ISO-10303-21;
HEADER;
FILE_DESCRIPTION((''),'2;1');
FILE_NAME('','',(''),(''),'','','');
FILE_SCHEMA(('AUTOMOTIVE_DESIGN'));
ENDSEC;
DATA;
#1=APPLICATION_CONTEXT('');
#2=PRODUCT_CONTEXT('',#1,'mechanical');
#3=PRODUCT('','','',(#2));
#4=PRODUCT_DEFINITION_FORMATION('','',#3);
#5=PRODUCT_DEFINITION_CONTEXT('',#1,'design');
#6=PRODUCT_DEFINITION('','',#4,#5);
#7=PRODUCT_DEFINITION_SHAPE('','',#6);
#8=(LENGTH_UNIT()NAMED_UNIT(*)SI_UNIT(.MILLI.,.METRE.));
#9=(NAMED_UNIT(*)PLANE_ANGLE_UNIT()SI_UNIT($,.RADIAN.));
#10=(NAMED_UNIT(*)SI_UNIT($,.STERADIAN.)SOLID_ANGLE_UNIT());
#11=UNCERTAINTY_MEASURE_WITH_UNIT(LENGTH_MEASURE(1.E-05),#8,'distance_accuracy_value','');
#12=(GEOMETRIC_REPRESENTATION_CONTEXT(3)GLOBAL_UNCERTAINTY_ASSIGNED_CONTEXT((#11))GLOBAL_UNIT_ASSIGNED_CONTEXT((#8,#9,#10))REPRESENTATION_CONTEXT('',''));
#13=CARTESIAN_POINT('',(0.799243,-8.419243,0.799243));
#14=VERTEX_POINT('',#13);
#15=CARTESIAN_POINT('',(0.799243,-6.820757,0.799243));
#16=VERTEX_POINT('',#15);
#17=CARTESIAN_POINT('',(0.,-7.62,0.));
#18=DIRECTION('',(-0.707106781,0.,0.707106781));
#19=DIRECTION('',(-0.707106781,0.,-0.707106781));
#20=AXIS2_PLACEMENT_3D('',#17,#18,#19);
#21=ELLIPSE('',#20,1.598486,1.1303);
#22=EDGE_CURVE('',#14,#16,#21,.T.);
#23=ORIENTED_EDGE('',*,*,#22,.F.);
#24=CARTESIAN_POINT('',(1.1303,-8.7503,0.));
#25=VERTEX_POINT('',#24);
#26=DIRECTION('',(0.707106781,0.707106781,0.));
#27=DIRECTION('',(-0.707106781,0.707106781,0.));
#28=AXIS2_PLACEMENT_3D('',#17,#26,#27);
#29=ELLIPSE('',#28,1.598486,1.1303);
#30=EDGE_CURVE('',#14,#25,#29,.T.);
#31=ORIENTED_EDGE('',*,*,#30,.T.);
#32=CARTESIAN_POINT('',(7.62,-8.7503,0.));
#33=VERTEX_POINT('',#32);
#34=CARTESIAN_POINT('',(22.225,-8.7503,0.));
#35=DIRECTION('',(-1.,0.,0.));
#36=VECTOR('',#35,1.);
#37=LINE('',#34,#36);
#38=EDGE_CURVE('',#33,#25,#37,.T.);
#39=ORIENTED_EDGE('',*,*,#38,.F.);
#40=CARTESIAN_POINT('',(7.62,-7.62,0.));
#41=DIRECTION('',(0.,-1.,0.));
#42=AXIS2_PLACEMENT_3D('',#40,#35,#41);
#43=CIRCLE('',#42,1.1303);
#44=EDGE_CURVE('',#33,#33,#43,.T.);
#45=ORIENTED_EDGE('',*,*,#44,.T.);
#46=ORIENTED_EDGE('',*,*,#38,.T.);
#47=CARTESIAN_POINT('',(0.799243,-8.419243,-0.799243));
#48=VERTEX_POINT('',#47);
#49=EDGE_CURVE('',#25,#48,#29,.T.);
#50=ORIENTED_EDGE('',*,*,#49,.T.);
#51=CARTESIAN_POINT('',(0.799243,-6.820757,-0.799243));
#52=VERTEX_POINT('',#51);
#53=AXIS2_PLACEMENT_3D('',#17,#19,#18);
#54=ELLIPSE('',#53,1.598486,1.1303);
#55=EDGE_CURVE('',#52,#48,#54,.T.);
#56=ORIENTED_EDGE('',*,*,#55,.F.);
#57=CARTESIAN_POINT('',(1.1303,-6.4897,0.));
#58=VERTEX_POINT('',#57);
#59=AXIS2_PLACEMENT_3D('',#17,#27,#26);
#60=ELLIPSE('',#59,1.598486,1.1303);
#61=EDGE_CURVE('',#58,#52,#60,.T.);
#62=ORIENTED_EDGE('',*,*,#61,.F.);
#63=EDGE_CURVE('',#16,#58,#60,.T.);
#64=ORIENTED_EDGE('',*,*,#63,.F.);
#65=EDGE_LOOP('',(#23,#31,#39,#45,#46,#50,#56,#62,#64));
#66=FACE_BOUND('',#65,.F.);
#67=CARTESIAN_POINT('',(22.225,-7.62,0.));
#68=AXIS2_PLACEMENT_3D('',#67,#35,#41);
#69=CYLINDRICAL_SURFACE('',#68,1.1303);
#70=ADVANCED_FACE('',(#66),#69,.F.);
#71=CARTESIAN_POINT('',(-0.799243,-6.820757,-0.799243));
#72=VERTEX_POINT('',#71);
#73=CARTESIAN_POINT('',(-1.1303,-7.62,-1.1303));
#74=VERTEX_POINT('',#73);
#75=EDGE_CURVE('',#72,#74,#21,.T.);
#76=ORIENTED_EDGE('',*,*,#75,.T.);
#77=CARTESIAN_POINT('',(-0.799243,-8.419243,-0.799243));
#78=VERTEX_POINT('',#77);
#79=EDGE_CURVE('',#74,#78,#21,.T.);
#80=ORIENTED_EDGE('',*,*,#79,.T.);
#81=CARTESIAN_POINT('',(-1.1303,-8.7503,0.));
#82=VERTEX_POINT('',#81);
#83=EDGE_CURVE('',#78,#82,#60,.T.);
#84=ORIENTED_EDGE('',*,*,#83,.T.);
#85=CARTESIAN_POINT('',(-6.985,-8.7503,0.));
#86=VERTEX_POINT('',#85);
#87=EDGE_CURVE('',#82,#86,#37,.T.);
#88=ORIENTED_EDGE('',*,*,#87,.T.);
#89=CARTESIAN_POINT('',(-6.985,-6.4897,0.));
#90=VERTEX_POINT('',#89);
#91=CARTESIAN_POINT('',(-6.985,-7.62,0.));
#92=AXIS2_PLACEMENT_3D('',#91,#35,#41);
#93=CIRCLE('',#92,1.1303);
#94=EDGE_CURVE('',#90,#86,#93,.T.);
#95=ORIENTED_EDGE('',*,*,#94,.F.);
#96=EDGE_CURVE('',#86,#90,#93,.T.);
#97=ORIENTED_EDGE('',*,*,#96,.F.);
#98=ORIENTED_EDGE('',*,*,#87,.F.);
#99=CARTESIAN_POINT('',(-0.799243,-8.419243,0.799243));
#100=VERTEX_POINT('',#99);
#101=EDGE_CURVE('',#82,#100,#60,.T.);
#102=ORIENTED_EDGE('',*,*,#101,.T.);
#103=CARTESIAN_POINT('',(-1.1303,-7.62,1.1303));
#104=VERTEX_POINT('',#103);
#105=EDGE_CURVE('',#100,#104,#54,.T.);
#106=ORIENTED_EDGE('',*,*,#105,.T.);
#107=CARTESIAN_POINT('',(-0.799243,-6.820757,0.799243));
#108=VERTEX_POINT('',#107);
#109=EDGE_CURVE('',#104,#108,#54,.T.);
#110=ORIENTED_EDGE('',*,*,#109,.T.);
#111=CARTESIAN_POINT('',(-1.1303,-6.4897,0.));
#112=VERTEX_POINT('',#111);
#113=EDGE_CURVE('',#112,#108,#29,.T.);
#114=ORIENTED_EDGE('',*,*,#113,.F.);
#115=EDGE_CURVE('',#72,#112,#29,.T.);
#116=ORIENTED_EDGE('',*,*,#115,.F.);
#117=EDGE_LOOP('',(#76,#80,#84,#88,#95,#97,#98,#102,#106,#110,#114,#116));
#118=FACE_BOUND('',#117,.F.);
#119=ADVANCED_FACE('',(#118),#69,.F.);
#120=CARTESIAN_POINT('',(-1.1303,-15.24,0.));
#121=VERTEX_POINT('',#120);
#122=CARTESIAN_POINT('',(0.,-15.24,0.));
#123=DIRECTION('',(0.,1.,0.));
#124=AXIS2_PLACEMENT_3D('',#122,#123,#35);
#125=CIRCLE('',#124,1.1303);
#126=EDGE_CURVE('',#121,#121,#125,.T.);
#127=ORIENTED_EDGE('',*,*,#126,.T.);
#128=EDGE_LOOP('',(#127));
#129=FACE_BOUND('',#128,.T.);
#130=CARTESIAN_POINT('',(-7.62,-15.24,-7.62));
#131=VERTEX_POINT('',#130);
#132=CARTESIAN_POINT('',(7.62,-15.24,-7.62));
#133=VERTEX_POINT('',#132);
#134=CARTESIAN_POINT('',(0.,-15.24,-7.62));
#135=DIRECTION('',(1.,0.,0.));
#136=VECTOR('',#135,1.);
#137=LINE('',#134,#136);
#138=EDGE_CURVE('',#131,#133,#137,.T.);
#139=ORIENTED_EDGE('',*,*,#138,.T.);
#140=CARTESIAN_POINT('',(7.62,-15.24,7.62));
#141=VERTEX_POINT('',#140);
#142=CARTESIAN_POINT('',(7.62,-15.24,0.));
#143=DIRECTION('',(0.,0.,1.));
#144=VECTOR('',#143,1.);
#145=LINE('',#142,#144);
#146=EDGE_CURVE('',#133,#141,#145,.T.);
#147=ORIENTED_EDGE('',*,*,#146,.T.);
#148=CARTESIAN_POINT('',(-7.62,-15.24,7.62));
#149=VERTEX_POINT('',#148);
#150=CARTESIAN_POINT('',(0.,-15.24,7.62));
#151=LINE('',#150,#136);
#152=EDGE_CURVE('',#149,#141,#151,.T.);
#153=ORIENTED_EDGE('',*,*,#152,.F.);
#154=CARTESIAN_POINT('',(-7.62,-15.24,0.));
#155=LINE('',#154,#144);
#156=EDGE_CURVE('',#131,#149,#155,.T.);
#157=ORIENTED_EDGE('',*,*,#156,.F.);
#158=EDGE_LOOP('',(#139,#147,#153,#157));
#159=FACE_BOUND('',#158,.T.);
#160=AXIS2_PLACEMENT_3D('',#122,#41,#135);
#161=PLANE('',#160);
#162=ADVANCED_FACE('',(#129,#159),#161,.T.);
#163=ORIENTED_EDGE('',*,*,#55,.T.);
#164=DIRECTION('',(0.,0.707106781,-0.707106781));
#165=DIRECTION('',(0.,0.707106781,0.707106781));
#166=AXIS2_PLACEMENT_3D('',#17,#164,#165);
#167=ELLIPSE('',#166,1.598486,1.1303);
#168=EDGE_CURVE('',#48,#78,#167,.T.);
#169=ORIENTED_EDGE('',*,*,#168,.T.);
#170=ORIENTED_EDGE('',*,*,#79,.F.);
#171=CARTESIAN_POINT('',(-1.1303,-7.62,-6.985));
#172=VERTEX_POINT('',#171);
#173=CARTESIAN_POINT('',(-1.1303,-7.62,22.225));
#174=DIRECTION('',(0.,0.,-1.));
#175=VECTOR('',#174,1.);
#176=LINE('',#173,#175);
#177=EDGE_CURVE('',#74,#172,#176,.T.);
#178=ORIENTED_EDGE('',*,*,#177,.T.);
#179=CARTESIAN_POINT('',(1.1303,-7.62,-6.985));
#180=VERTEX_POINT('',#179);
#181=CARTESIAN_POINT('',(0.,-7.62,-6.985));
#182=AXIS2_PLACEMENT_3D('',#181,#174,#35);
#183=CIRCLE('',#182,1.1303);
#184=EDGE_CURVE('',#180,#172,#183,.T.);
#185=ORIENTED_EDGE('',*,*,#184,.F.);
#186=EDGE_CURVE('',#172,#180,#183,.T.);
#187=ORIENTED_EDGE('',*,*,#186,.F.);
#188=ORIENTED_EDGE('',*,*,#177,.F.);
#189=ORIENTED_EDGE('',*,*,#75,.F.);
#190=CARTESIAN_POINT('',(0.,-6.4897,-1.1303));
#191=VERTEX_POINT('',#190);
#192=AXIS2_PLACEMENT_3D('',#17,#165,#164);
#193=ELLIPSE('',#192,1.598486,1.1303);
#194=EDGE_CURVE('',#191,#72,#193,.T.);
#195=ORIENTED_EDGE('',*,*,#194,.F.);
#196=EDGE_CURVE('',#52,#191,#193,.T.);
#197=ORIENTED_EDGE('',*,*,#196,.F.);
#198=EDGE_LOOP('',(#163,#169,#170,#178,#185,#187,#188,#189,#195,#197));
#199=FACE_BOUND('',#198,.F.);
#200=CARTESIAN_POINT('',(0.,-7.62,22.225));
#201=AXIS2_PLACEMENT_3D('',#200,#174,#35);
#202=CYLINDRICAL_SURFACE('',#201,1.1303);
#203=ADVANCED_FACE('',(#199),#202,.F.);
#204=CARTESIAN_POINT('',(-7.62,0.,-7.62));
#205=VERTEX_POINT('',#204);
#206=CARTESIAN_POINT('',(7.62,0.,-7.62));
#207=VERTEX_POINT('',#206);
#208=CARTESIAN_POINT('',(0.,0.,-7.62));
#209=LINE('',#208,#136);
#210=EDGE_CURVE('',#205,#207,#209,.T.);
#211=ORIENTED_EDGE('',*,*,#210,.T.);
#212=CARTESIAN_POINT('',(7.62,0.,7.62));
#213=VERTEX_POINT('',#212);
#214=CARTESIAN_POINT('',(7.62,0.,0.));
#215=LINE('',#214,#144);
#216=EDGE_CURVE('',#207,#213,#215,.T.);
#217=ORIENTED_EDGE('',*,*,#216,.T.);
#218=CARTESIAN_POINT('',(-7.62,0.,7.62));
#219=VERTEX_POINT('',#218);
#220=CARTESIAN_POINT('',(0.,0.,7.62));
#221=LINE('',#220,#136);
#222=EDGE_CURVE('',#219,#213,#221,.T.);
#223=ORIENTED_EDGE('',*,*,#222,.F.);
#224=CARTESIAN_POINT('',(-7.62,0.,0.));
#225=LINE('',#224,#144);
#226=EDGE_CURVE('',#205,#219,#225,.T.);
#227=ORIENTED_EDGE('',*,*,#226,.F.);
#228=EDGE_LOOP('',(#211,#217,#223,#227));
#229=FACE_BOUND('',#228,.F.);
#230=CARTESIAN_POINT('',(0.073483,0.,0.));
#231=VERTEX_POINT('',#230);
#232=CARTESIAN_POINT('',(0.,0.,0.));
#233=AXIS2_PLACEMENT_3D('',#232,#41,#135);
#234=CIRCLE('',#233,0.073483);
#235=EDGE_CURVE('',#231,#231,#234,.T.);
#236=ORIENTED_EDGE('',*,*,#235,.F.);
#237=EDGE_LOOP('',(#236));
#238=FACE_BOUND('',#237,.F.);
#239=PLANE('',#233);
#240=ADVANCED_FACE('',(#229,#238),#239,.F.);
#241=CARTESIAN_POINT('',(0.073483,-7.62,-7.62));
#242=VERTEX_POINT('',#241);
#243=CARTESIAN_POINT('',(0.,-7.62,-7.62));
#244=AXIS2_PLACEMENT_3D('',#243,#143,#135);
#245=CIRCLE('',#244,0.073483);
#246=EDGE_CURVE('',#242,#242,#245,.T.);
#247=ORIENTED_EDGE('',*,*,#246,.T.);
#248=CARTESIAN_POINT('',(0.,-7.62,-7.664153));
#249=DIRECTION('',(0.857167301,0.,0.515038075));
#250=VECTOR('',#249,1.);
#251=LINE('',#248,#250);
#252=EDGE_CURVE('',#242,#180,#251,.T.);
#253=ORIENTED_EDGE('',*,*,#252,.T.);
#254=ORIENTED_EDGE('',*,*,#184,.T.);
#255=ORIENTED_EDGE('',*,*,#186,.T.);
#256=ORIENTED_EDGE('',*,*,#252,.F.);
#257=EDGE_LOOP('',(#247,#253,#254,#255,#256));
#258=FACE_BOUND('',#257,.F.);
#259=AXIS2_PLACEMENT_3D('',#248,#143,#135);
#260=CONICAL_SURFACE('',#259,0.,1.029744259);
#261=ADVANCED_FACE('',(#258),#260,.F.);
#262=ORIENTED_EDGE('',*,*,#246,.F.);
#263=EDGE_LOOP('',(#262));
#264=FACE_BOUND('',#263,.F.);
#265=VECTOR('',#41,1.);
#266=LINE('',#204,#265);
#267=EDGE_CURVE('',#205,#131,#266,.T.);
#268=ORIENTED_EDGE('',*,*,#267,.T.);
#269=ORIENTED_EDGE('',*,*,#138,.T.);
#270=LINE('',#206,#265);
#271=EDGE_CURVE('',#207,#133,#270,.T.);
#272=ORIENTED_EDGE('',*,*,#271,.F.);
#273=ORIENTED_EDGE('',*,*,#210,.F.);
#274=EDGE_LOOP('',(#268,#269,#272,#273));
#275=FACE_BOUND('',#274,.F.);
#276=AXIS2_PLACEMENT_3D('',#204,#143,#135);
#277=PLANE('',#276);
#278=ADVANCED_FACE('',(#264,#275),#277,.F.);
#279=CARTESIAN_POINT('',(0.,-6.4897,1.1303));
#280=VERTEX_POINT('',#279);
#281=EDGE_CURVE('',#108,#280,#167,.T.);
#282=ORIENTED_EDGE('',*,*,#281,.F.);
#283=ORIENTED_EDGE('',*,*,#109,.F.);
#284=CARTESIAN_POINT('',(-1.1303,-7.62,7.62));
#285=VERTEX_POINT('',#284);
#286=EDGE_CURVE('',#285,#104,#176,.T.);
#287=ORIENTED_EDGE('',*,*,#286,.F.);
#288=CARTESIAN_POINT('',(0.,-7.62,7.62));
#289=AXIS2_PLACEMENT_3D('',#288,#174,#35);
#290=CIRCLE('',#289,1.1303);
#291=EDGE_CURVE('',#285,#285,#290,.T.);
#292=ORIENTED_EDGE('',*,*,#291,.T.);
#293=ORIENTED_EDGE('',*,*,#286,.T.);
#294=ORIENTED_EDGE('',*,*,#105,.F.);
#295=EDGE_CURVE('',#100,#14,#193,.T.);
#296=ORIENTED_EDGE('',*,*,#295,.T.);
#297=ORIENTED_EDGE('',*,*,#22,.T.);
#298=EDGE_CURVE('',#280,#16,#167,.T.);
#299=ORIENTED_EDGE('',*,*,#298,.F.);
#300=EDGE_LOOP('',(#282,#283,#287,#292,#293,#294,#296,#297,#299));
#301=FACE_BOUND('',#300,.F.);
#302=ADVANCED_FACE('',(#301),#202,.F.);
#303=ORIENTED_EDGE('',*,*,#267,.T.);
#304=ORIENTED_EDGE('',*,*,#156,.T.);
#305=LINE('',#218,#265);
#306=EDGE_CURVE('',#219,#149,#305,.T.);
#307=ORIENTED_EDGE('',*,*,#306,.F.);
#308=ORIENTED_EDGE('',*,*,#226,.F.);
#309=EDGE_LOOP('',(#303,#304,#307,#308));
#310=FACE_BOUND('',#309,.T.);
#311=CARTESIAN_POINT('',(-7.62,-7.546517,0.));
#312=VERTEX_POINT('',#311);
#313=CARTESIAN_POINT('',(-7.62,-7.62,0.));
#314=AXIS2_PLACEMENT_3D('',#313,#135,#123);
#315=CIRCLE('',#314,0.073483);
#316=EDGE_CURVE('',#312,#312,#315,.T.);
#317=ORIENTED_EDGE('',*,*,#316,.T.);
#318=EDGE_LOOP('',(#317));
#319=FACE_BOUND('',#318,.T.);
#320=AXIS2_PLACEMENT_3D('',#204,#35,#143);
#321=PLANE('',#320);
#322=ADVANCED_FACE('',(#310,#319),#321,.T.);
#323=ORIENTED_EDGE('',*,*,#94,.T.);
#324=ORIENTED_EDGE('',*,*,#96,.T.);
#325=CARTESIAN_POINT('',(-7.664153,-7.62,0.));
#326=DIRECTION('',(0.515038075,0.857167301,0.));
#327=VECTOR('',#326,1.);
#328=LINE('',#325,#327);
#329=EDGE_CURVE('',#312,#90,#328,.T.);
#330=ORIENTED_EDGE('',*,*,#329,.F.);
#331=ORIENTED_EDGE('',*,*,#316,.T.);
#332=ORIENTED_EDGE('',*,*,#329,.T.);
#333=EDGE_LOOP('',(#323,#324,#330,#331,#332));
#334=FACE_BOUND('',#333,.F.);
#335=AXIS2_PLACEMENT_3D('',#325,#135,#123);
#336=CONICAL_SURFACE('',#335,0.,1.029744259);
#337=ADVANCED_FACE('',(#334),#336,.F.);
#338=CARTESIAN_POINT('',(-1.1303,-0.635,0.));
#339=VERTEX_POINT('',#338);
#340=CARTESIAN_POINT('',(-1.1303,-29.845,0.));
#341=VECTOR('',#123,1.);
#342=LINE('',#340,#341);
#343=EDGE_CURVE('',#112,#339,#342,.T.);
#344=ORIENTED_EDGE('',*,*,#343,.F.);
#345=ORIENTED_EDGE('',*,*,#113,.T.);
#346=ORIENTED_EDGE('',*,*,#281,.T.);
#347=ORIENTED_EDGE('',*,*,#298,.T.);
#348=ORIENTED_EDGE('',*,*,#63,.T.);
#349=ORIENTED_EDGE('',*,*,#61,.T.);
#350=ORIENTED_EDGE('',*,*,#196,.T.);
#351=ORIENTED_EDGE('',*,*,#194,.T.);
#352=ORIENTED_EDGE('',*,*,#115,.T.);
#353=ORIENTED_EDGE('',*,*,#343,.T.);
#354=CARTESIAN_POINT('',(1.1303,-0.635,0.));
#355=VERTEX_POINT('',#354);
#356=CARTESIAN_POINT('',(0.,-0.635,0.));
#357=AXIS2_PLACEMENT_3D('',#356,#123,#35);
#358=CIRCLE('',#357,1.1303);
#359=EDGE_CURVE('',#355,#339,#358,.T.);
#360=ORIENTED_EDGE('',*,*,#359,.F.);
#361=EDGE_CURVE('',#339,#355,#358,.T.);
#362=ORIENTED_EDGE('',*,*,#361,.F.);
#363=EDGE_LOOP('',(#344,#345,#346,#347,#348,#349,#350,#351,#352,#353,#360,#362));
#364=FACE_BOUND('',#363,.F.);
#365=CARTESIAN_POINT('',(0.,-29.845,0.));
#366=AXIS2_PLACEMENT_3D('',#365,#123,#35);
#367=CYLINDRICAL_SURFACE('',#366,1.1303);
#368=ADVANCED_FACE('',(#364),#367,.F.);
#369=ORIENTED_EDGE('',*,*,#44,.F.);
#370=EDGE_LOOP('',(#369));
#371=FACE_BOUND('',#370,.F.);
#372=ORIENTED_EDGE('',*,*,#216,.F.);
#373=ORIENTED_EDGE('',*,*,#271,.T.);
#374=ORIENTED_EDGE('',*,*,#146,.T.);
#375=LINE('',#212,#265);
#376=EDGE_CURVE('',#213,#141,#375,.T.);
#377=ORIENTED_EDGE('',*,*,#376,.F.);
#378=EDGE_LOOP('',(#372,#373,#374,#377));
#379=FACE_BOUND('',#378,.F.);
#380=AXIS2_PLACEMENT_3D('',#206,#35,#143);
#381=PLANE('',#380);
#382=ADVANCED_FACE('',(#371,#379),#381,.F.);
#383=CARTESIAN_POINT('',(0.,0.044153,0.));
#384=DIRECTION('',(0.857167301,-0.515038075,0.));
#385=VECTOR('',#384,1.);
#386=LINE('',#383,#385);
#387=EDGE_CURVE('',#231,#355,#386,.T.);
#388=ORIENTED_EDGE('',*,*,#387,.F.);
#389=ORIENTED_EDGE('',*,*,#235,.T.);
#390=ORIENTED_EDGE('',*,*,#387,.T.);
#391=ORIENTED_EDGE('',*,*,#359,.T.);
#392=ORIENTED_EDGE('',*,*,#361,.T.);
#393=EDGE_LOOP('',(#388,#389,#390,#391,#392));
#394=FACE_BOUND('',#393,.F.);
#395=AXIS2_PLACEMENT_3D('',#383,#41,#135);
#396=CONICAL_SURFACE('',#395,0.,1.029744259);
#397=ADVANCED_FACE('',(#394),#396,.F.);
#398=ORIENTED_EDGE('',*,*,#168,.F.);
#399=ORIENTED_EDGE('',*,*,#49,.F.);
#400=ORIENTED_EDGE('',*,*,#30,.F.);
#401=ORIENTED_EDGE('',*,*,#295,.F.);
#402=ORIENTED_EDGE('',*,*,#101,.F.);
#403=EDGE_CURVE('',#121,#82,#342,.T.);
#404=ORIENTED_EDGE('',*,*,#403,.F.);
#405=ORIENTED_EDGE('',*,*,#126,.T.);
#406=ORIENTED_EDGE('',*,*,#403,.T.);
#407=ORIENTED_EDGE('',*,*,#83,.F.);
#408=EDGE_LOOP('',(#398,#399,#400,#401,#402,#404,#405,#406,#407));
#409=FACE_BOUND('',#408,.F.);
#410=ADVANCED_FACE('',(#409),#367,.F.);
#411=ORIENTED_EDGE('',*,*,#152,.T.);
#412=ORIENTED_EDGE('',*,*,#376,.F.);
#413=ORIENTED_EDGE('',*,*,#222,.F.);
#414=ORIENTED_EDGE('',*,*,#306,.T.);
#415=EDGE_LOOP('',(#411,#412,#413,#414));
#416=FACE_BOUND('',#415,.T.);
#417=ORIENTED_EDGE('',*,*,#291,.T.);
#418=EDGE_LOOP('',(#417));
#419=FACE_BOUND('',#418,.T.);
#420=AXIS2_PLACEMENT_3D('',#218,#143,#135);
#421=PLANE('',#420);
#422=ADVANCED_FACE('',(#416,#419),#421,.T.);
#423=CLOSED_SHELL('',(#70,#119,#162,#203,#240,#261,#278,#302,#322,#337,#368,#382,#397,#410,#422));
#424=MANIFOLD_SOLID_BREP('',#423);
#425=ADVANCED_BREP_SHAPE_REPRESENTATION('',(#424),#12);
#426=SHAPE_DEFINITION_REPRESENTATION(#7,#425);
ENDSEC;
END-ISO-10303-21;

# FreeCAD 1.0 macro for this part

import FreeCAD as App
import Part
import Sketcher

V = App.Vector
Q = App.Units.Quantity


def add_polygon(sketch, points):
    """Adds a closed chain of lines whose ends are joined by coincident constraints."""
    first, n = sketch.GeometryCount, len(points)
    for a, b in zip(points, points[1:] + points[:1]):
        sketch.addGeometry(Part.LineSegment(App.Vector(*a, 0), App.Vector(*b, 0)), False)
    for i in range(n):
        sketch.addConstraint(Sketcher.Constraint("Coincident", first + i, 2, first + (i + 1) % n, 1))

doc = App.newDocument("Part")
body = doc.addObject("PartDesign::Body", "Body")

# Sketch on XZ plane
sketch1 = doc.addObject("Sketcher::SketchObject", "Sketch")
body.addObject(sketch1)
sketch1.AttachmentSupport = (doc.XZ_Plane, [""])
sketch1.MapMode = "FlatFace"
add_polygon(sketch1, [(-8, 8), (-8, -8), (8, -8), (8, 8)])  # lines 0-3
sketch1.addConstraint(Sketcher.Constraint("Vertical", 0))
sketch1.addConstraint(Sketcher.Constraint("Horizontal", 1))
sketch1.addConstraint(Sketcher.Constraint("Vertical", 2))
sketch1.addConstraint(Sketcher.Constraint("Horizontal", 3))
sketch1.addConstraint(Sketcher.Constraint("Symmetric", 0, 2, 2, 2, -1, 1))
sketch1.addConstraint(Sketcher.Constraint("Equal", 3, 0))
sketch1.addConstraint(Sketcher.Constraint("DistanceX", 1, 1, 1, 2, Q("0.6 in")))
pad1 = doc.addObject("PartDesign::Pad", "Pad")
body.addObject(pad1)
pad1.Profile = sketch1
pad1.Length = Q("0.6 in")

# Sketch on XZ plane
sketch2 = doc.addObject("Sketcher::SketchObject", "Sketch001")
body.addObject(sketch2)
sketch2.AttachmentSupport = (doc.XZ_Plane, [""])
sketch2.MapMode = "FlatFace"
sketch2.AttachmentOffset = App.Placement(V(0, 0, 0.6 * 25.4), App.Rotation())
sketch2.addGeometry(Part.Circle(V(0, 0, 0), V(0, 0, 1), 1.1), False)
sketch2.addConstraint(Sketcher.Constraint("Coincident", 0, 3, -1, 1))
sketch2.addConstraint(Sketcher.Constraint("Diameter", 0, Q("0.089 in")))
doc.recompute()
hole = doc.addObject("PartDesign::Hole", "Hole")
body.addObject(hole)
hole.Profile = sketch2
hole.ThreadType = "None"
hole.Diameter = Q("0.089 in")
hole.DepthType = "Dimension"
hole.Depth = Q("0.575 in")
hole.DrillPoint = "Angled"
hole.DrillPointAngle = 118

# Sketch on YZ plane
sketch3 = doc.addObject("Sketcher::SketchObject", "Sketch002")
body.addObject(sketch3)
sketch3.AttachmentSupport = (doc.YZ_Plane, [""])
sketch3.MapMode = "FlatFace"
sketch3.AttachmentOffset = App.Placement(V(0, 0, 0.3 * 25.4), App.Rotation())
sketch3.addGeometry(Part.Circle(V(-7.6, 0, 0), V(0, 0, 1), 1.1), False)
sketch3.addConstraint(Sketcher.Constraint("PointOnObject", 0, 3, -1))
sketch3.addConstraint(Sketcher.Constraint("Diameter", 0, Q("0.089 in")))
sketch3.addConstraint(Sketcher.Constraint("DistanceX", 0, 3, -1, 1, Q("0.3 in")))
doc.recompute()
hole2 = doc.addObject("PartDesign::Hole", "Hole001")
body.addObject(hole2)
hole2.Profile = sketch3
hole2.ThreadType = "None"
hole2.Diameter = Q("0.089 in")
hole2.DepthType = "Dimension"
hole2.Depth = Q("0.575 in")
hole2.DrillPoint = "Angled"
hole2.DrillPointAngle = 118

# Sketch on XY plane
sketch4 = doc.addObject("Sketcher::SketchObject", "Sketch003")
body.addObject(sketch4)
sketch4.AttachmentSupport = (doc.XY_Plane, [""])
sketch4.MapMode = "FlatFace"
sketch4.AttachmentOffset = App.Placement(V(0, 0, 0.3 * 25.4), App.Rotation())
sketch4.addGeometry(Part.Circle(V(0, -7.6, 0), V(0, 0, 1), 1.1), False)
sketch4.addConstraint(Sketcher.Constraint("PointOnObject", 0, 3, -2))
sketch4.addConstraint(Sketcher.Constraint("Diameter", 0, Q("0.089 in")))
sketch4.addConstraint(Sketcher.Constraint("DistanceY", 0, 3, -1, 1, Q("0.3 in")))
doc.recompute()
hole3 = doc.addObject("PartDesign::Hole", "Hole002")
body.addObject(hole3)
hole3.Profile = sketch4
hole3.ThreadType = "None"
hole3.Diameter = Q("0.089 in")
hole3.DepthType = "Dimension"
hole3.Depth = Q("0.575 in")
hole3.DrillPoint = "Angled"
hole3.DrillPointAngle = 118

doc.recompute()
